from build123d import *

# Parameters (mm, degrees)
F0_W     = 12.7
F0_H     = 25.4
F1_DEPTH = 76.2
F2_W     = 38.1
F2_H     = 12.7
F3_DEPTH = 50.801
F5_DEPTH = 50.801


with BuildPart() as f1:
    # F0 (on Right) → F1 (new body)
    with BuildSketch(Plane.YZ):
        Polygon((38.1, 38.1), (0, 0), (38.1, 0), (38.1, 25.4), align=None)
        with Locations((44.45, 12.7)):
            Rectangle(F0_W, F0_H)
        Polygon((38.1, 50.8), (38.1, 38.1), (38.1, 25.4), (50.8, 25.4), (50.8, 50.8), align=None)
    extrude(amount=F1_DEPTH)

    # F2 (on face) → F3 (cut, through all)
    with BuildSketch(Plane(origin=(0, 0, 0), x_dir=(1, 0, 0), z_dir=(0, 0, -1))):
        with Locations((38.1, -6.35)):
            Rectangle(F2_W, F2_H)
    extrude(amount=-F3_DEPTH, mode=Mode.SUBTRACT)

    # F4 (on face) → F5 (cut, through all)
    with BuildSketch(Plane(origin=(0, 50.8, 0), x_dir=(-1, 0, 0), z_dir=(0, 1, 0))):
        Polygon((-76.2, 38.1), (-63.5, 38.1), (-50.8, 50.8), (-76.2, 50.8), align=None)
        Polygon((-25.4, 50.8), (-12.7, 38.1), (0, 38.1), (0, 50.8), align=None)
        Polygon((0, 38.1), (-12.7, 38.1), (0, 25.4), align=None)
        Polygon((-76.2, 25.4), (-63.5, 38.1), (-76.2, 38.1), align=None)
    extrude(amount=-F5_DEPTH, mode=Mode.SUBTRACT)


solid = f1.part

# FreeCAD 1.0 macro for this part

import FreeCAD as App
import Part
import Sketcher

V = App.Vector
Q = App.Units.Quantity

doc = App.newDocument("Part")
params = doc.addObject("Spreadsheet::Sheet", "Params")
for row, (alias, value) in enumerate([
    ("sketch1_width", "2 in"),
    ("sketch1_width2", "0.5 in"),
    ("pad1_length", "3 in"),
    ("sketch2_width", "1.5 in"),
    ("sketch2_height", "0.5 in"),
    ("sketch3_width", "1 in"),
], start=1):
    params.set(f"A{row}", alias)
    params.set(f"B{row}", "=" + value)
    params.setAlias(f"B{row}", alias)

body = doc.addObject("PartDesign::Body", "Body")

sketch1 = doc.addObject("Sketcher::SketchObject", "Sketch")
body.addObject(sketch1)
sketch1.AttachmentSupport = (doc.YZ_Plane, [""])
sketch1.MapMode = "FlatFace"
sketch1.addGeometry([
    Part.LineSegment(V(38.1, 38.1, 0), V(0, 0, 0)),
    Part.LineSegment(V(0, 0, 0), V(50.8, 0, 0)),
    Part.LineSegment(V(50.8, 0, 0), V(50.8, 50.8, 0)),
    Part.LineSegment(V(50.8, 50.8, 0), V(38.1, 50.8, 0)),
    Part.LineSegment(V(38.1, 50.8, 0), V(38.1, 38.1, 0)),
], False)
sketch1.addConstraint([
    Sketcher.Constraint("Coincident", 0, 2, 1, 1),
    Sketcher.Constraint("Coincident", 1, 2, 2, 1),
    Sketcher.Constraint("Coincident", 2, 2, 3, 1),
    Sketcher.Constraint("Coincident", 3, 2, 4, 1),
    Sketcher.Constraint("Coincident", 4, 2, 0, 1),
    Sketcher.Constraint("Horizontal", 1),
    Sketcher.Constraint("Vertical", 2),
    Sketcher.Constraint("Horizontal", 3),
    Sketcher.Constraint("Vertical", 4),
    Sketcher.Constraint("Coincident", 0, 2, -1, 1),
    Sketcher.Constraint("Equal", 1, 2),
    Sketcher.Constraint("Equal", 3, 4),
    Sketcher.Constraint("DistanceX", 1, 1, 1, 2, Q("2 in")),
    Sketcher.Constraint("DistanceX", 3, 2, 3, 1, Q("0.5 in")),
])
sketch1.setExpression("Constraints[12]", "Params.sketch1_width")
sketch1.setExpression("Constraints[13]", "Params.sketch1_width2")
pad1 = doc.addObject("PartDesign::Pad", "Pad")
body.addObject(pad1)
pad1.Profile = sketch1
pad1.setExpression("Length", "Params.pad1_length")

sketch2 = doc.addObject("Sketcher::SketchObject", "Sketch001")
body.addObject(sketch2)
sketch2.AttachmentSupport = (doc.XY_Plane, [""])
sketch2.MapMode = "FlatFace"
sketch2.addGeometry([
    Part.LineSegment(V(19.05, 0, 0), V(19.05, 12.7, 0)),
    Part.LineSegment(V(19.05, 12.7, 0), V(57.15, 12.7, 0)),
    Part.LineSegment(V(57.15, 12.7, 0), V(57.15, 0, 0)),
    Part.LineSegment(V(57.15, 0, 0), V(19.05, 0, 0)),
], False)
sketch2.addConstraint([
    Sketcher.Constraint("Coincident", 0, 2, 1, 1),
    Sketcher.Constraint("Coincident", 1, 2, 2, 1),
    Sketcher.Constraint("Coincident", 2, 2, 3, 1),
    Sketcher.Constraint("Coincident", 3, 2, 0, 1),
    Sketcher.Constraint("Vertical", 0),
    Sketcher.Constraint("Horizontal", 1),
    Sketcher.Constraint("Vertical", 2),
    Sketcher.Constraint("Horizontal", 3),
    Sketcher.Constraint("PointOnObject", 2, 2, -1),
    Sketcher.Constraint("DistanceX", 1, 1, 1, 2, Q("1.5 in")),
    Sketcher.Constraint("DistanceY", 0, 1, 0, 2, Q("0.5 in")),
    Sketcher.Constraint("DistanceX", -1, 1, 0, 2, Q("0.75 in")),
])
sketch2.setExpression("Constraints[9]", "Params.sketch2_width")
sketch2.setExpression("Constraints[10]", "Params.sketch2_height")
pocket1 = doc.addObject("PartDesign::Pocket", "Pocket")
body.addObject(pocket1)
pocket1.Profile = sketch2
pocket1.Type = "ThroughAll"
pocket1.Reversed = True

sketch3 = doc.addObject("Sketcher::SketchObject", "Sketch002")
body.addObject(sketch3)
sketch3.AttachmentSupport = (doc.XZ_Plane, [""])
sketch3.MapMode = "FlatFace"
sketch3.AttachmentOffset = App.Placement(V(0, 0, -2 * 25.4), App.Rotation())
sketch3.addGeometry([
    Part.LineSegment(V(50.8, 50.8, 0), V(76.2, 50.8, 0)),
    Part.LineSegment(V(76.2, 50.8, 0), V(76.2, 25.4, 0)),
    Part.LineSegment(V(76.2, 25.4, 0), V(50.8, 50.8, 0)),
    Part.LineSegment(V(25.4, 50.8, 0), V(0, 25.4, 0)),
    Part.LineSegment(V(0, 25.4, 0), V(0, 50.8, 0)),
    Part.LineSegment(V(0, 50.8, 0), V(25.4, 50.8, 0)),
], False)
sketch3.addConstraint([
    Sketcher.Constraint("Coincident", 0, 2, 1, 1),
    Sketcher.Constraint("Coincident", 1, 2, 2, 1),
    Sketcher.Constraint("Coincident", 2, 2, 0, 1),
    Sketcher.Constraint("Coincident", 3, 2, 4, 1),
    Sketcher.Constraint("Coincident", 4, 2, 5, 1),
    Sketcher.Constraint("Coincident", 5, 2, 3, 1),
    Sketcher.Constraint("Horizontal", 0),
    Sketcher.Constraint("Vertical", 1),
    Sketcher.Constraint("Vertical", 4),
    Sketcher.Constraint("Horizontal", 5),
    Sketcher.Constraint("PointOnObject", 3, 2, -2),
    Sketcher.Constraint("Perpendicular", 2, 3),
    Sketcher.Constraint("Horizontal", 1, 2, 3, 2),
    Sketcher.Constraint("Horizontal", 2, 2, 4, 2),
    Sketcher.Constraint("Equal", 0, 5),
    Sketcher.Constraint("DistanceX", 0, 1, 0, 2, Q("1 in")),
    Sketcher.Constraint("DistanceX", -1, 1, 0, 2, Q("3 in")),
    Sketcher.Constraint("DistanceY", -1, 1, 0, 2, Q("2 in")),
])
sketch3.setExpression("Constraints[15]", "Params.sketch3_width")
pocket2 = doc.addObject("PartDesign::Pocket", "Pocket001")
body.addObject(pocket2)
pocket2.Profile = sketch3
pocket2.Type = "ThroughAll"
pocket2.Reversed = True

doc.recompute()
